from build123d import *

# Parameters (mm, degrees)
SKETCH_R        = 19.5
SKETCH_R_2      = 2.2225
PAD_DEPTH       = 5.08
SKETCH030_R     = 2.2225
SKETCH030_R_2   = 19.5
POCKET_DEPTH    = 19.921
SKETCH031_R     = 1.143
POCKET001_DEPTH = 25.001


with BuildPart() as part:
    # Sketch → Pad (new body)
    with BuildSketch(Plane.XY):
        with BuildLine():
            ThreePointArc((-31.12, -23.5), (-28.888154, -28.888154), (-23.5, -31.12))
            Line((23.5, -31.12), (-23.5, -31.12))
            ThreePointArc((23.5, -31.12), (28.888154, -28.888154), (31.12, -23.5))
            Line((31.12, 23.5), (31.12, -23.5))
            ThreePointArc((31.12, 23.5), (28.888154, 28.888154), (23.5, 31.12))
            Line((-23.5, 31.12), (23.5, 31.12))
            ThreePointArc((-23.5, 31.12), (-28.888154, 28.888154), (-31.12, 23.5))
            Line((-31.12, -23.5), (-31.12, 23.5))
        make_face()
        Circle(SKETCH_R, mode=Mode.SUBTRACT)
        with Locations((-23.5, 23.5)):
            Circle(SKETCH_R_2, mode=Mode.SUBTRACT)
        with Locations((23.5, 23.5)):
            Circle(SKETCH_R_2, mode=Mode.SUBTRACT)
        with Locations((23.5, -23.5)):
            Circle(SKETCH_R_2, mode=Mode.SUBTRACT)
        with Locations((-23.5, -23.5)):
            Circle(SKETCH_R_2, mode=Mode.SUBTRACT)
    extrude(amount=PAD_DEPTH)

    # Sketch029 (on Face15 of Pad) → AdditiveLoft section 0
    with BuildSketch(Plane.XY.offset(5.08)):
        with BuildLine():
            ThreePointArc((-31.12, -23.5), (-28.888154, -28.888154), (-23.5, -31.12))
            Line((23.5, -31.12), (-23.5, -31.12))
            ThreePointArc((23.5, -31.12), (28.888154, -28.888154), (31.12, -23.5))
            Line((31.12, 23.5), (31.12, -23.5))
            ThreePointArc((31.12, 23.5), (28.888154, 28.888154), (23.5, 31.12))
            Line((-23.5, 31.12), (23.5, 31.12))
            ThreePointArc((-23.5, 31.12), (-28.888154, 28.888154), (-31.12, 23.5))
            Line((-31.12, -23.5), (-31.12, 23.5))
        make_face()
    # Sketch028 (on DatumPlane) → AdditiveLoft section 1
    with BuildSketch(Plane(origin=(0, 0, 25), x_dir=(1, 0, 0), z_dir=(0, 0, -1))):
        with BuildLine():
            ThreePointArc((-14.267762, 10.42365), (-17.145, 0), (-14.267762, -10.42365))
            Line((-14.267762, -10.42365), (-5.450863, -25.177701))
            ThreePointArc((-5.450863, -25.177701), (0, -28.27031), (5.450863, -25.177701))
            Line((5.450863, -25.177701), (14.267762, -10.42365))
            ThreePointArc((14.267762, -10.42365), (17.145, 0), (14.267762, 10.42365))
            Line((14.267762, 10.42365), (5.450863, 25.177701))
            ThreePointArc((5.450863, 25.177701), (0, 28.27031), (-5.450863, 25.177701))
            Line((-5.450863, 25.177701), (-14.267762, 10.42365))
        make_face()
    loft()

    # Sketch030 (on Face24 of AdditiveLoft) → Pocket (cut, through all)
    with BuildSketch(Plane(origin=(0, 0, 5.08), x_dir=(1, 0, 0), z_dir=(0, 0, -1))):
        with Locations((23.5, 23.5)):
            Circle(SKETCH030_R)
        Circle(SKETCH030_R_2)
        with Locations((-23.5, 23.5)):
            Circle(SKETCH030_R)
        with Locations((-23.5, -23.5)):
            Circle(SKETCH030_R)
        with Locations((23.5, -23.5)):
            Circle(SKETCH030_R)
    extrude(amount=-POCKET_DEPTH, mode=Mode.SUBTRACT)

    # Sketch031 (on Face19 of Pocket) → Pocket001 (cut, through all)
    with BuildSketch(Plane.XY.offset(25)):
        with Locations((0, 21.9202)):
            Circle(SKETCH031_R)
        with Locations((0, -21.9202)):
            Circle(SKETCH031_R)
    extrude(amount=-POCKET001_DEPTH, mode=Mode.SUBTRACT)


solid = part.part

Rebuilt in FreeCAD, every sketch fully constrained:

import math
import FreeCAD as App
import Part
import Sketcher
Q = App.Units.Quantity

doc = App.newDocument("Part")
body = doc.addObject("PartDesign::Body", "Body")

# Sketch on XY plane
sketch1 = body.newObject("Sketcher::SketchObject", "Sketch")
sketch1.AttachmentSupport = (doc.getObject("XY_Plane"), [""])
sketch1.MapMode = "FlatFace"
sketch1.addGeometry([
    Part.ArcOfCircle(Part.Circle(App.Vector(-23.5, -23.5, 0), App.Vector(0, 0, 1), 7.6), math.radians(180), math.radians(270)),  # 0
    Part.LineSegment(App.Vector(-23.5, -31.1, 0), App.Vector(23.5, -31.1, 0)),  # 1
    Part.ArcOfCircle(Part.Circle(App.Vector(23.5, -23.5, 0), App.Vector(0, 0, 1), 7.6), math.radians(-90), math.radians(0)),  # 2
    Part.LineSegment(App.Vector(31.1, -23.5, 0), App.Vector(31.1, 23.5, 0)),  # 3
    Part.ArcOfCircle(Part.Circle(App.Vector(23.5, 23.5, 0), App.Vector(0, 0, 1), 7.6), math.radians(0), math.radians(90)),  # 4
    Part.LineSegment(App.Vector(23.5, 31.1, 0), App.Vector(-23.5, 31.1, 0)),  # 5
    Part.ArcOfCircle(Part.Circle(App.Vector(-23.5, 23.5, 0), App.Vector(0, 0, 1), 7.6), math.radians(90), math.radians(180)),  # 6
    Part.LineSegment(App.Vector(-31.1, 23.5, 0), App.Vector(-31.1, -23.5, 0)),  # 7
    Part.Circle(App.Vector(-23.5, -23.5, 0), App.Vector(0, 0, 1), 2.2),  # 8
    Part.Circle(App.Vector(23.5, -23.5, 0), App.Vector(0, 0, 1), 2.2),  # 9
    Part.Circle(App.Vector(-23.5, 23.5, 0), App.Vector(0, 0, 1), 2.2),  # 10
    Part.Circle(App.Vector(0, 0, 0), App.Vector(0, 0, 1), 19.5),  # 11
    Part.Circle(App.Vector(23.5, 23.5, 0), App.Vector(0, 0, 1), 2.2),  # 12
], False)
sketch1.addConstraint([
    Sketcher.Constraint("Tangent", 0, 2, 1, 1),
    Sketcher.Constraint("Tangent", 1, 2, 2, 1),
    Sketcher.Constraint("Tangent", 2, 2, 3, 1),
    Sketcher.Constraint("Tangent", 3, 2, 4, 1),
    Sketcher.Constraint("Tangent", 4, 2, 5, 1),
    Sketcher.Constraint("Tangent", 5, 2, 6, 1),
    Sketcher.Constraint("Tangent", 6, 2, 7, 1),
    Sketcher.Constraint("Tangent", 7, 2, 0, 1),
    Sketcher.Constraint("Horizontal", 1),
    Sketcher.Constraint("Vertical", 3),
    Sketcher.Constraint("Horizontal", 5),
    Sketcher.Constraint("Vertical", 7),
    Sketcher.Constraint("Coincident", 11, 3, -1, 1),
    Sketcher.Constraint("Coincident", 8, 3, 0, 3),
    Sketcher.Constraint("Coincident", 9, 3, 2, 3),
    Sketcher.Constraint("Coincident", 10, 3, 6, 3),
    Sketcher.Constraint("Coincident", 12, 3, 4, 3),
    Sketcher.Constraint("Equal", 0, 2),
    Sketcher.Constraint("Equal", 2, 4),
    Sketcher.Constraint("Equal", 4, 6),
    Sketcher.Constraint("Equal", 8, 9),
    Sketcher.Constraint("Equal", 9, 10),
    Sketcher.Constraint("Equal", 10, 12),
    Sketcher.Constraint("Symmetric", 0, 3, 4, 3, -1, 1),
    Sketcher.Constraint("Equal", 5, 3),
    Sketcher.Constraint("Radius", 0, Q("0.3 in")),
    Sketcher.Constraint("Diameter", 8, Q("0.175 in")),
    Sketcher.Constraint("Diameter", 11, 39.0),
    Sketcher.Constraint("DistanceX", 1, 1, 1, 2, 47.0),
])
pad1 = body.newObject("PartDesign::Pad", "Pad")
pad1.Profile = sketch1
pad1.Length = Q("0.2 in")

# Sketch on XY plane
sketch2 = body.newObject("Sketcher::SketchObject", "Sketch001")
sketch2.AttachmentSupport = (doc.getObject("XY_Plane"), [""])
sketch2.MapMode = "FlatFace"
sketch2.AttachmentOffset = App.Placement(App.Vector(0, 0, 0.2 * 25.4), App.Rotation())
sketch2.addGeometry([
    Part.ArcOfCircle(Part.Circle(App.Vector(-24, -24, 0), App.Vector(0, 0, 1), 8), math.radians(180), math.radians(270)),  # 0
    Part.LineSegment(App.Vector(-24, -31, 0), App.Vector(24, -31, 0)),  # 1
    Part.ArcOfCircle(Part.Circle(App.Vector(24, -24, 0), App.Vector(0, 0, 1), 8), math.radians(-90), math.radians(0)),  # 2
    Part.LineSegment(App.Vector(31, -24, 0), App.Vector(31, 24, 0)),  # 3
    Part.ArcOfCircle(Part.Circle(App.Vector(24, 24, 0), App.Vector(0, 0, 1), 8), math.radians(0), math.radians(90)),  # 4
    Part.LineSegment(App.Vector(24, 31, 0), App.Vector(-24, 31, 0)),  # 5
    Part.ArcOfCircle(Part.Circle(App.Vector(-24, 24, 0), App.Vector(0, 0, 1), 8), math.radians(90), math.radians(180)),  # 6
    Part.LineSegment(App.Vector(-31, 24, 0), App.Vector(-31, -24, 0)),  # 7
], False)
sketch2.addConstraint([
    Sketcher.Constraint("Tangent", 0, 2, 1, 1),
    Sketcher.Constraint("Tangent", 1, 2, 2, 1),
    Sketcher.Constraint("Tangent", 2, 2, 3, 1),
    Sketcher.Constraint("Tangent", 3, 2, 4, 1),
    Sketcher.Constraint("Tangent", 4, 2, 5, 1),
    Sketcher.Constraint("Tangent", 5, 2, 6, 1),
    Sketcher.Constraint("Tangent", 6, 2, 7, 1),
    Sketcher.Constraint("Tangent", 7, 2, 0, 1),
    Sketcher.Constraint("Horizontal", 1),
    Sketcher.Constraint("Vertical", 3),
    Sketcher.Constraint("Horizontal", 5),
    Sketcher.Constraint("Vertical", 7),
    Sketcher.Constraint("Equal", 0, 2),
    Sketcher.Constraint("Equal", 2, 4),
    Sketcher.Constraint("Equal", 4, 6),
    Sketcher.Constraint("Symmetric", 0, 3, 4, 3, -1, 1),
    Sketcher.Constraint("Equal", 5, 3),
    Sketcher.Constraint("Radius", 0, Q("0.3 in")),
    Sketcher.Constraint("DistanceX", 1, 1, 1, 2, 47.0),
])

# Sketch on XY plane
sketch3 = body.newObject("Sketcher::SketchObject", "Sketch002")
sketch3.AttachmentSupport = (doc.getObject("XY_Plane"), [""])
sketch3.MapMode = "FlatFace"
sketch3.AttachmentOffset = App.Placement(App.Vector(0, 0, 25), App.Rotation())
sketch3.addGeometry([
    Part.ArcOfCircle(Part.Circle(App.Vector(3, 0, 0), App.Vector(0, 0, 1), 20), math.radians(149), math.radians(211)),  # 0
    Part.LineSegment(App.Vector(-14, 10, 0), App.Vector(-5, 25, 0)),  # 1
    Part.ArcOfCircle(Part.Circle(App.Vector(0, 22, 0), App.Vector(0, 0, 1), 6), math.radians(31), math.radians(149)),  # 2
    Part.LineSegment(App.Vector(5, 25, 0), App.Vector(14, 10, 0)),  # 3
    Part.ArcOfCircle(Part.Circle(App.Vector(-3, 0, 0), App.Vector(0, 0, 1), 20), math.radians(-31), math.radians(31)),  # 4
    Part.LineSegment(App.Vector(14, -10, 0), App.Vector(5, -25, 0)),  # 5
    Part.ArcOfCircle(Part.Circle(App.Vector(0, -22, 0), App.Vector(0, 0, 1), 6), math.radians(-149), math.radians(-31)),  # 6
    Part.LineSegment(App.Vector(-5, -25, 0), App.Vector(-14, -10, 0)),  # 7
], False)
sketch3.addConstraint([
    Sketcher.Constraint("Tangent", 0, 1, 1, 1),
    Sketcher.Constraint("Tangent", 1, 2, 2, 2),
    Sketcher.Constraint("Tangent", 2, 1, 3, 1),
    Sketcher.Constraint("Tangent", 3, 2, 4, 2),
    Sketcher.Constraint("Tangent", 4, 1, 5, 1),
    Sketcher.Constraint("Tangent", 5, 2, 6, 2),
    Sketcher.Constraint("Tangent", 6, 1, 7, 1),
    Sketcher.Constraint("Tangent", 7, 2, 0, 2),
    Sketcher.Constraint("Equal", 0, 4),
    Sketcher.Constraint("Equal", 2, 6),
    Sketcher.Constraint("Symmetric", 0, 3, 4, 3, -1, 1),
    Sketcher.Constraint("Symmetric", 2, 3, 6, 3, -1, 1),
    Sketcher.Constraint("Symmetric", 1, 2, 2, 1, -2),
    Sketcher.Constraint("Radius", 0, Q("0.8000002 in")),
    Sketcher.Constraint("Radius", 2, Q("0.25 in")),
    Sketcher.Constraint("DistanceX", -1, 1, 0, 3, Q("0.1250002 in")),
    Sketcher.Constraint("DistanceY", -1, 1, 1, 2, 25.177701),
])

additiveloft = body.newObject("PartDesign::AdditiveLoft", "AdditiveLoft")
additiveloft.Profile = sketch2
additiveloft.Sections = [sketch3]

# Sketch on XY plane
sketch4 = body.newObject("Sketcher::SketchObject", "Sketch003")
sketch4.AttachmentSupport = (doc.getObject("XY_Plane"), [""])
sketch4.MapMode = "FlatFace"
sketch4.AttachmentOffset = App.Placement(App.Vector(0, 0, 0.2 * 25.4), App.Rotation())
sketch4.addGeometry([
    Part.Circle(App.Vector(23.5, -23.5, 0), App.Vector(0, 0, 1), 2.2),  # 0
    Part.Circle(App.Vector(0, 0, 0), App.Vector(0, 0, 1), 19.5),  # 1
    Part.Circle(App.Vector(-23.5, -23.5, 0), App.Vector(0, 0, 1), 2.2),  # 2
    Part.Circle(App.Vector(-23.5, 23.5, 0), App.Vector(0, 0, 1), 2.2),  # 3
    Part.Circle(App.Vector(23.5, 23.5, 0), App.Vector(0, 0, 1), 2.2),  # 4
], False)
sketch4.addConstraint([
    Sketcher.Constraint("Coincident", 1, 3, -1, 1),
    Sketcher.Constraint("Equal", 0, 2),
    Sketcher.Constraint("Equal", 2, 3),
    Sketcher.Constraint("Equal", 3, 4),
    Sketcher.Constraint("Symmetric", 0, 3, 3, 3, -1, 1),
    Sketcher.Constraint("Symmetric", 2, 3, 4, 3, -1, 1),
    Sketcher.Constraint("Symmetric", 0, 3, 2, 3, -2),
    Sketcher.Constraint("Diameter", 0, Q("0.175 in")),
    Sketcher.Constraint("Diameter", 1, 39.0),
    Sketcher.Constraint("DistanceX", -1, 1, 0, 3, 23.5),
    Sketcher.Constraint("DistanceY", 0, 3, -1, 1, 23.5),
])
pocket1 = body.newObject("PartDesign::Pocket", "Pocket")
pocket1.Profile = sketch4
pocket1.Type = "ThroughAll"
pocket1.Reversed = True

# Sketch on XY plane
sketch5 = body.newObject("Sketcher::SketchObject", "Sketch004")
sketch5.AttachmentSupport = (doc.getObject("XY_Plane"), [""])
sketch5.MapMode = "FlatFace"
sketch5.AttachmentOffset = App.Placement(App.Vector(0, 0, 25), App.Rotation())
sketch5.addGeometry([
    Part.Circle(App.Vector(0, 21.9, 0), App.Vector(0, 0, 1), 1.1),
    Part.Circle(App.Vector(0, -21.9, 0), App.Vector(0, 0, 1), 1.1),
], False)
sketch5.addConstraint([
    Sketcher.Constraint("Equal", 0, 1),
    Sketcher.Constraint("Symmetric", 0, 3, 1, 3, -1, 1),
    Sketcher.Constraint("PointOnObject", 0, 3, -2),
    Sketcher.Constraint("Diameter", 0, Q("0.09 in")),
    Sketcher.Constraint("DistanceY", -1, 1, 0, 3, Q("0.863 in")),
])
pocket2 = body.newObject("PartDesign::Pocket", "Pocket001")
pocket2.Profile = sketch5
pocket2.Type = "ThroughAll"

doc.recompute()
